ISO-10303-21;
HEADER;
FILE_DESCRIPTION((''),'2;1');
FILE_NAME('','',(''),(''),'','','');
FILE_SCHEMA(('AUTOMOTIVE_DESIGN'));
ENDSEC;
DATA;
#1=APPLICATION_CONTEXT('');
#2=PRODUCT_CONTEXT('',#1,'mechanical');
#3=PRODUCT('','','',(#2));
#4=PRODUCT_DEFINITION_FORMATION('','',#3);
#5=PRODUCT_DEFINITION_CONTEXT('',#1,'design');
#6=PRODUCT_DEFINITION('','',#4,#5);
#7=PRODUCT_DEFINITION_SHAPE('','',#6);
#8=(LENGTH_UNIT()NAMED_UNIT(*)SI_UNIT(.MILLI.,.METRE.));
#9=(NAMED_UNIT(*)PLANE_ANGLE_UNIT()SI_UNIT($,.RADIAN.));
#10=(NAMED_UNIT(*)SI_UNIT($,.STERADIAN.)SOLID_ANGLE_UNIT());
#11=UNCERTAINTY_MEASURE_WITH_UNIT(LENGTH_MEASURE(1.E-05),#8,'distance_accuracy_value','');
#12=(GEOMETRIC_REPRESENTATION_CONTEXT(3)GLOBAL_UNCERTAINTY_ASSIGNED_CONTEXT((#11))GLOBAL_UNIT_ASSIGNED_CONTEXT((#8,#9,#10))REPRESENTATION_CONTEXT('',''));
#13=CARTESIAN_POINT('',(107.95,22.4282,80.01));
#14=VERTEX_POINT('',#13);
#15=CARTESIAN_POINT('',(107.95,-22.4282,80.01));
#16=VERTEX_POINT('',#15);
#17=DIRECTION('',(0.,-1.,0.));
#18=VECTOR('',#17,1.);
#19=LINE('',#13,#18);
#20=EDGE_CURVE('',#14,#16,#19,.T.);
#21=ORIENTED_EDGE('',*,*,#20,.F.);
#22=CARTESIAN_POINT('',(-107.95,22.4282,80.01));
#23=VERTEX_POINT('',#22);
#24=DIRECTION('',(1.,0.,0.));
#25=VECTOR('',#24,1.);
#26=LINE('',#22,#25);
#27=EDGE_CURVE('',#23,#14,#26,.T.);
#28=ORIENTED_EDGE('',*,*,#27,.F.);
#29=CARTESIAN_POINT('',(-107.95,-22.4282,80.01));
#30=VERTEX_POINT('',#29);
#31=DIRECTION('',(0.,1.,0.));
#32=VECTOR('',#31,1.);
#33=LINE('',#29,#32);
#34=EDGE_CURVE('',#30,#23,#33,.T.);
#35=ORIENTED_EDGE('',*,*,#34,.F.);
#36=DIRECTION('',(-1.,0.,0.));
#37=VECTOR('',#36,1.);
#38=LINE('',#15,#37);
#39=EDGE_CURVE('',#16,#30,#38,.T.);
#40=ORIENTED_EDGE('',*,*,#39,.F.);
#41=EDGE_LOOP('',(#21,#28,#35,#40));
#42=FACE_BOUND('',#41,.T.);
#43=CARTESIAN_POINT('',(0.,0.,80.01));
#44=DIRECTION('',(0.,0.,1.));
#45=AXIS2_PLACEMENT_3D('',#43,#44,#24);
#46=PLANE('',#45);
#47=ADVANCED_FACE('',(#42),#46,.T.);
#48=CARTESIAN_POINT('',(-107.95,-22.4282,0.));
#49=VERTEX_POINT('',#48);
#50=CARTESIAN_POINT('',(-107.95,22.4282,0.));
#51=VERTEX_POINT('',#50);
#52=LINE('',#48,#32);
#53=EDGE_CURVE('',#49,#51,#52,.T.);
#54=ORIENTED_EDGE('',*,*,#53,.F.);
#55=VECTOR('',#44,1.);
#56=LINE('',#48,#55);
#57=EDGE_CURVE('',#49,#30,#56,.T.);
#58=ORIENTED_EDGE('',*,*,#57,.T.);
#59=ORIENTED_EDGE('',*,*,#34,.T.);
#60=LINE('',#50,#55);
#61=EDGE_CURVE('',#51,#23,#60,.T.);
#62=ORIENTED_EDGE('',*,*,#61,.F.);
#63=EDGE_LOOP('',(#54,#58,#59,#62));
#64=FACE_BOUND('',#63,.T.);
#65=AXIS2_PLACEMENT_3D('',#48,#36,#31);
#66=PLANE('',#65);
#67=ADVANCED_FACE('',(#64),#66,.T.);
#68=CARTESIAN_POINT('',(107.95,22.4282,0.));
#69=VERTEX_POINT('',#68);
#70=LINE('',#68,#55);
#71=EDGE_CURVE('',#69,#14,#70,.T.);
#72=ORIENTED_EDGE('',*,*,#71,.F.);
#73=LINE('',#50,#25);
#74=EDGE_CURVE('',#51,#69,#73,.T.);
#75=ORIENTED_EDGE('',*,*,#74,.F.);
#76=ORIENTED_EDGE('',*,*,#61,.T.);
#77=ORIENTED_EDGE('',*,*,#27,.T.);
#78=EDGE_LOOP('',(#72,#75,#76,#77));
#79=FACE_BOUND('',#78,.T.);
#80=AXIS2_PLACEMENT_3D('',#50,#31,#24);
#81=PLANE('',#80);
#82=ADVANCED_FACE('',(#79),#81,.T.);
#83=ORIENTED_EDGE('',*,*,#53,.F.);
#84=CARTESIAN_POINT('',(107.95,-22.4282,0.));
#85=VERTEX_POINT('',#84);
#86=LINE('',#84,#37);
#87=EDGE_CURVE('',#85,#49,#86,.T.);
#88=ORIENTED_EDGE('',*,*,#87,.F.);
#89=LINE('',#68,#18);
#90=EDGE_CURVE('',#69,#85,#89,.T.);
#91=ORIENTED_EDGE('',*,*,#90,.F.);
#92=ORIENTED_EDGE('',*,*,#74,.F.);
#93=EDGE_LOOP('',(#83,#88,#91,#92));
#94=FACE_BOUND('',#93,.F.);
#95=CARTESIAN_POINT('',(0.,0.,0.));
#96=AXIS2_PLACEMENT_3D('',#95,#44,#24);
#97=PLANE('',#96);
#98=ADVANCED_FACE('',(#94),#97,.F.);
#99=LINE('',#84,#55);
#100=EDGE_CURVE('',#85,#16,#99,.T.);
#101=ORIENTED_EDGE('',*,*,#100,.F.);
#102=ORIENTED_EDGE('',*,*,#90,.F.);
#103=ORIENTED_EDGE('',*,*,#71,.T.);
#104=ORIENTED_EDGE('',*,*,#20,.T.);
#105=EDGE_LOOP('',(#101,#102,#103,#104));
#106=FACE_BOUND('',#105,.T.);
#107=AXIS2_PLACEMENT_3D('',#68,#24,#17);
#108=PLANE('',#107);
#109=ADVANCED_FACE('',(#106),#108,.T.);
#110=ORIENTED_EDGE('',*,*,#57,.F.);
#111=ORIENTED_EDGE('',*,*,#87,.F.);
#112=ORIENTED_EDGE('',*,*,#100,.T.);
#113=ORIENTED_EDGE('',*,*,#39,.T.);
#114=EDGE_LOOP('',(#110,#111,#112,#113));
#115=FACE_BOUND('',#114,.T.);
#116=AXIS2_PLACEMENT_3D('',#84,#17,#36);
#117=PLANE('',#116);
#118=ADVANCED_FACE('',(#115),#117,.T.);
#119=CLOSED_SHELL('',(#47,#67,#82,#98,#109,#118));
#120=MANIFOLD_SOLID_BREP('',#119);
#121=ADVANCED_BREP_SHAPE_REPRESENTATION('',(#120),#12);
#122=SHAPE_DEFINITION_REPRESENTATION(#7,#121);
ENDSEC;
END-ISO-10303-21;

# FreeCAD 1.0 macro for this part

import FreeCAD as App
import Part
import Sketcher
from FreeCAD import Vector
Q = App.Units.Quantity


def add_polygon(sketch, points):
    """Adds a closed chain of lines whose ends are joined by coincident constraints."""
    first, n = sketch.GeometryCount, len(points)
    for a, b in zip(points, points[1:] + points[:1]):
        sketch.addGeometry(Part.LineSegment(App.Vector(*a, 0), App.Vector(*b, 0)), False)
    for i in range(n):
        sketch.addConstraint(Sketcher.Constraint("Coincident", first + i, 2, first + (i + 1) % n, 1))

doc = App.newDocument("Part")
params = doc.addObject("Spreadsheet::Sheet", "Params")
for row, (alias, value) in enumerate([
    ("sketch1_width", "8.5 in"),
    ("sketch1_height", "1.766 in"),
    ("pad1_length", "3.15 in"),
], start=1):
    params.set(f"A{row}", alias)
    params.set(f"B{row}", "=" + value)
    params.setAlias(f"B{row}", alias)

body = doc.addObject("PartDesign::Body", "Body")

sketch1 = doc.addObject("Sketcher::SketchObject", "Sketch")
body.addObject(sketch1)
sketch1.AttachmentSupport = (doc.XY_Plane, [""])
sketch1.MapMode = "FlatFace"
add_polygon(sketch1, [(108, 22), (-108, 22), (-108, -22), (108, -22)])
sketch1.addConstraint([
    Sketcher.Constraint("Horizontal", 0),
    Sketcher.Constraint("Vertical", 1),
    Sketcher.Constraint("Horizontal", 2),
    Sketcher.Constraint("Vertical", 3),
    Sketcher.Constraint("Symmetric", 0, 2, 2, 2, -1, 1),
    Sketcher.Constraint("DistanceX", 0, 2, 0, 1, Q("8.5 in")),
    Sketcher.Constraint("DistanceY", 1, 2, 1, 1, Q("1.766 in")),
])
sketch1.setExpression("Constraints[9]", "Params.sketch1_width")
sketch1.setExpression("Constraints[10]", "Params.sketch1_height")
pad1 = doc.addObject("PartDesign::Pad", "Pad")
body.addObject(pad1)
pad1.Profile = sketch1
pad1.setExpression("Length", "Params.pad1_length")

doc.recompute()
